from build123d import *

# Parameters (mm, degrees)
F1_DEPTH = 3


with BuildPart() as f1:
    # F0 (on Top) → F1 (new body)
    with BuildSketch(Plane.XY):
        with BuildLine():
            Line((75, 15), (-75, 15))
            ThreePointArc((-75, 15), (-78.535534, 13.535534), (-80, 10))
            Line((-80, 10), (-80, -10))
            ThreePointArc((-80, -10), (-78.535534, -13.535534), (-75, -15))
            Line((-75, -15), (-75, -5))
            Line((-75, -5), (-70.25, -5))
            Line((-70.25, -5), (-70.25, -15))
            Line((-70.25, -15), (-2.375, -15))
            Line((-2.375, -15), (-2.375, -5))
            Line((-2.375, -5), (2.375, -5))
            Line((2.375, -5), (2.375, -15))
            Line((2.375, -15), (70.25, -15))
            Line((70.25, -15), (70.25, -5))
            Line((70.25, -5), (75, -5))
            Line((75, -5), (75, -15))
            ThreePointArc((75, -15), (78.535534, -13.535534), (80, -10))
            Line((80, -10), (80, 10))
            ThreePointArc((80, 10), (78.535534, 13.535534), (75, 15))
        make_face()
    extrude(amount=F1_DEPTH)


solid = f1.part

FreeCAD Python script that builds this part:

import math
import FreeCAD as App
import Part
import Sketcher
from FreeCAD import Vector

doc = App.newDocument("Part")
body = doc.addObject("PartDesign::Body", "Body")

# Sketch on XY plane
sketch1 = doc.addObject("Sketcher::SketchObject", "Sketch")
body.addObject(sketch1)
sketch1.AttachmentSupport = (doc.XY_Plane, [""])
sketch1.MapMode = "FlatFace"
sketch1.addGeometry(Part.LineSegment(Vector(75, 15, 0), Vector(-75, 15, 0)), False)
sketch1.addGeometry(Part.ArcOfCircle(Part.Circle(Vector(-75, 10, 0), Vector(0, 0, 1), 5), math.radians(89.999996), math.radians(180.000004)), False)
sketch1.addGeometry(Part.LineSegment(Vector(-80, 10, 0), Vector(-80, -10, 0)), False)
sketch1.addGeometry(Part.ArcOfCircle(Part.Circle(Vector(-75, -10, 0), Vector(0, 0, 1), 5), math.radians(179.999996), math.radians(270.000004)), False)
sketch1.addGeometry(Part.LineSegment(Vector(-75, -15, 0), Vector(-75, -5, 0)), False)
sketch1.addGeometry(Part.LineSegment(Vector(-75, -5, 0), Vector(-70.25, -5, 0)), False)
sketch1.addGeometry(Part.LineSegment(Vector(-70.25, -5, 0), Vector(-70.25, -15, 0)), False)
sketch1.addGeometry(Part.LineSegment(Vector(-70.25, -15, 0), Vector(-2.375, -15, 0)), False)
sketch1.addGeometry(Part.LineSegment(Vector(-2.375, -15, 0), Vector(-2.375, -5, 0)), False)
sketch1.addGeometry(Part.LineSegment(Vector(-2.375, -5, 0), Vector(2.375, -5, 0)), False)
sketch1.addGeometry(Part.LineSegment(Vector(2.375, -5, 0), Vector(2.375, -15, 0)), False)
sketch1.addGeometry(Part.LineSegment(Vector(2.375, -15, 0), Vector(70.25, -15, 0)), False)
sketch1.addGeometry(Part.LineSegment(Vector(70.25, -15, 0), Vector(70.25, -5, 0)), False)
sketch1.addGeometry(Part.LineSegment(Vector(70.25, -5, 0), Vector(75, -5, 0)), False)
sketch1.addGeometry(Part.LineSegment(Vector(75, -5, 0), Vector(75, -15, 0)), False)
sketch1.addGeometry(Part.ArcOfCircle(Part.Circle(Vector(75, -10, 0), Vector(0, 0, 1), 5), math.radians(-90.000004), math.radians(0.000004)), False)
sketch1.addGeometry(Part.LineSegment(Vector(80, -10, 0), Vector(80, 10, 0)), False)
sketch1.addGeometry(Part.ArcOfCircle(Part.Circle(Vector(75, 10, 0), Vector(0, 0, 1), 5), math.radians(-0.000004), math.radians(90.000004)), False)
sketch1.addConstraint(Sketcher.Constraint("Tangent", 0, 2, 1, 1))
sketch1.addConstraint(Sketcher.Constraint("Tangent", 1, 2, 2, 1))
sketch1.addConstraint(Sketcher.Constraint("Tangent", 2, 2, 3, 1))
sketch1.addConstraint(Sketcher.Constraint("Coincident", 3, 2, 4, 1))
sketch1.addConstraint(Sketcher.Constraint("Coincident", 4, 2, 5, 1))
sketch1.addConstraint(Sketcher.Constraint("Coincident", 5, 2, 6, 1))
sketch1.addConstraint(Sketcher.Constraint("Coincident", 6, 2, 7, 1))
sketch1.addConstraint(Sketcher.Constraint("Coincident", 7, 2, 8, 1))
sketch1.addConstraint(Sketcher.Constraint("Coincident", 8, 2, 9, 1))
sketch1.addConstraint(Sketcher.Constraint("Coincident", 9, 2, 10, 1))
sketch1.addConstraint(Sketcher.Constraint("Coincident", 10, 2, 11, 1))
sketch1.addConstraint(Sketcher.Constraint("Coincident", 11, 2, 12, 1))
sketch1.addConstraint(Sketcher.Constraint("Coincident", 12, 2, 13, 1))
sketch1.addConstraint(Sketcher.Constraint("Coincident", 13, 2, 14, 1))
sketch1.addConstraint(Sketcher.Constraint("Coincident", 14, 2, 15, 1))
sketch1.addConstraint(Sketcher.Constraint("Tangent", 15, 2, 16, 1))
sketch1.addConstraint(Sketcher.Constraint("Tangent", 16, 2, 17, 1))
sketch1.addConstraint(Sketcher.Constraint("Tangent", 17, 2, 0, 1))
sketch1.addConstraint(Sketcher.Constraint("Horizontal", 0))
sketch1.addConstraint(Sketcher.Constraint("Vertical", 2))
sketch1.addConstraint(Sketcher.Constraint("Vertical", 4))
sketch1.addConstraint(Sketcher.Constraint("Horizontal", 5))
sketch1.addConstraint(Sketcher.Constraint("Vertical", 6))
sketch1.addConstraint(Sketcher.Constraint("Horizontal", 7))
sketch1.addConstraint(Sketcher.Constraint("Vertical", 8))
sketch1.addConstraint(Sketcher.Constraint("Horizontal", 9))
sketch1.addConstraint(Sketcher.Constraint("Vertical", 10))
sketch1.addConstraint(Sketcher.Constraint("Horizontal", 11))
sketch1.addConstraint(Sketcher.Constraint("Vertical", 12))
sketch1.addConstraint(Sketcher.Constraint("Horizontal", 13))
sketch1.addConstraint(Sketcher.Constraint("Vertical", 14))
sketch1.addConstraint(Sketcher.Constraint("Vertical", 16))
sketch1.addConstraint(Sketcher.Constraint("Equal", 1, 3))
sketch1.addConstraint(Sketcher.Constraint("Equal", 3, 15))
sketch1.addConstraint(Sketcher.Constraint("Equal", 15, 17))
sketch1.addConstraint(Sketcher.Constraint("Symmetric", 1, 3, 15, 3, -1, 1))
sketch1.addConstraint(Sketcher.Constraint("Symmetric", 3, 2, 17, 2, -1, 1))
sketch1.addConstraint(Sketcher.Constraint("Symmetric", 7, 2, 10, 2, -2))
sketch1.addConstraint(Sketcher.Constraint("Symmetric", 5, 2, 12, 2, -2))
sketch1.addConstraint(Sketcher.Constraint("Horizontal", 3, 2, 6, 2))
sketch1.addConstraint(Sketcher.Constraint("Horizontal", 5, 2, 8, 2))
sketch1.addConstraint(Sketcher.Constraint("Vertical", 17, 3, 13, 2))
sketch1.addConstraint(Sketcher.Constraint("Equal", 5, 9))
sketch1.addConstraint(Sketcher.Constraint("Radius", 1, 5.0))
sketch1.addConstraint(Sketcher.Constraint("DistanceX", 0, 2, 0, 1, 150.0))
sketch1.addConstraint(Sketcher.Constraint("DistanceY", 2, 2, 2, 1, 20.0))
sketch1.addConstraint(Sketcher.Constraint("DistanceY", 4, 1, 4, 2, 10.0))
sketch1.addConstraint(Sketcher.Constraint("DistanceX", 5, 1, 5, 2, 4.75))
pad1 = doc.addObject("PartDesign::Pad", "Pad")
body.addObject(pad1)
pad1.Profile = sketch1
pad1.Length = 3

doc.recompute()
